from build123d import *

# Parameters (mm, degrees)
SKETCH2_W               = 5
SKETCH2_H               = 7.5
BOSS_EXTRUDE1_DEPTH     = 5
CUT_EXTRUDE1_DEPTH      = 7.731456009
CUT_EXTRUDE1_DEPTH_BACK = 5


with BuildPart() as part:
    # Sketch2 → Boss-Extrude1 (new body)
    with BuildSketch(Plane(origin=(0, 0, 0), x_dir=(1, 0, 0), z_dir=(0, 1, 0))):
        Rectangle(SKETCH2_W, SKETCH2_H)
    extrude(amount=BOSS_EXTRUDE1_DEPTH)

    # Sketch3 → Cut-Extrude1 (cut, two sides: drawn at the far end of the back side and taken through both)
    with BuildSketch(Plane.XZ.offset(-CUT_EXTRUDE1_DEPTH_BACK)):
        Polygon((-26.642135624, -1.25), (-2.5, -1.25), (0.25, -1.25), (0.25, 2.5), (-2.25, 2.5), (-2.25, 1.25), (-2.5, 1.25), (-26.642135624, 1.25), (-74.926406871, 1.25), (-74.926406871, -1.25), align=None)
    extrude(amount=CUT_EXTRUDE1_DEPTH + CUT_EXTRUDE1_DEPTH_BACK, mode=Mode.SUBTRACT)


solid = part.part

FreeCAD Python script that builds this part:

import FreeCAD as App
import Part
import Sketcher
from FreeCAD import Vector


def add_polygon(sketch, points):
    """Adds a closed chain of lines whose ends are joined by coincident constraints."""
    first, n = sketch.GeometryCount, len(points)
    for a, b in zip(points, points[1:] + points[:1]):
        sketch.addGeometry(Part.LineSegment(App.Vector(*a, 0), App.Vector(*b, 0)), False)
    for i in range(n):
        sketch.addConstraint(Sketcher.Constraint("Coincident", first + i, 2, first + (i + 1) % n, 1))

doc = App.newDocument("Part")
body = doc.addObject("PartDesign::Body", "Body")

sketch1 = body.newObject("Sketcher::SketchObject", "Sketch")
sketch1.AttachmentSupport = (doc.getObject("XZ_Plane"), [""])
sketch1.MapMode = "FlatFace"
add_polygon(sketch1, [(-2, -4), (-2, 4), (2, 4), (2, -4)])
sketch1.addConstraint(Sketcher.Constraint("Vertical", 0))
sketch1.addConstraint(Sketcher.Constraint("Horizontal", 1))
sketch1.addConstraint(Sketcher.Constraint("Vertical", 2))
sketch1.addConstraint(Sketcher.Constraint("Horizontal", 3))
sketch1.addConstraint(Sketcher.Constraint("Symmetric", 0, 2, 2, 2, -1, 1))
sketch1.addConstraint(Sketcher.Constraint("DistanceX", 1, 1, 1, 2, 5.0))
sketch1.addConstraint(Sketcher.Constraint("DistanceY", 0, 1, 0, 2, 7.5))
pad1 = body.newObject("PartDesign::Pad", "Pad")
pad1.Profile = sketch1
pad1.Length = 5
pad1.Reversed = True

sketch2 = body.newObject("Sketcher::SketchObject", "Sketch001")
sketch2.AttachmentSupport = (doc.getObject("XZ_Plane"), [""])
sketch2.MapMode = "FlatFace"
add_polygon(sketch2, [(0.2, -1.2), (0.2, 2.5), (-2.2, 2.5), (-2.2, 1.2), (-74.9, 1.2), (-74.9, -1.2)])
sketch2.addConstraint(Sketcher.Constraint("Vertical", 0))
sketch2.addConstraint(Sketcher.Constraint("Horizontal", 1))
sketch2.addConstraint(Sketcher.Constraint("Vertical", 2))
sketch2.addConstraint(Sketcher.Constraint("Horizontal", 3))
sketch2.addConstraint(Sketcher.Constraint("Vertical", 4))
sketch2.addConstraint(Sketcher.Constraint("Horizontal", 5))
sketch2.addConstraint(Sketcher.Constraint("Equal", 1, 4))
sketch2.addConstraint(Sketcher.Constraint("DistanceX", 1, 2, 1, 1, 2.5))
sketch2.addConstraint(Sketcher.Constraint("DistanceY", 0, 1, 0, 2, 3.75))
sketch2.addConstraint(Sketcher.Constraint("DistanceY", -1, 1, 0, 2, 2.5))
sketch2.addConstraint(Sketcher.Constraint("DistanceX", -1, 1, 0, 2, 0.25))
sketch2.addConstraint(Sketcher.Constraint("DistanceX", 3, 2, 3, 1, 72.676407))
pocket1 = body.newObject("PartDesign::Pocket", "Pocket")
pocket1.Profile = sketch2
pocket1.Type = "ThroughAll"
pocket1.Midplane = True

doc.recompute()
